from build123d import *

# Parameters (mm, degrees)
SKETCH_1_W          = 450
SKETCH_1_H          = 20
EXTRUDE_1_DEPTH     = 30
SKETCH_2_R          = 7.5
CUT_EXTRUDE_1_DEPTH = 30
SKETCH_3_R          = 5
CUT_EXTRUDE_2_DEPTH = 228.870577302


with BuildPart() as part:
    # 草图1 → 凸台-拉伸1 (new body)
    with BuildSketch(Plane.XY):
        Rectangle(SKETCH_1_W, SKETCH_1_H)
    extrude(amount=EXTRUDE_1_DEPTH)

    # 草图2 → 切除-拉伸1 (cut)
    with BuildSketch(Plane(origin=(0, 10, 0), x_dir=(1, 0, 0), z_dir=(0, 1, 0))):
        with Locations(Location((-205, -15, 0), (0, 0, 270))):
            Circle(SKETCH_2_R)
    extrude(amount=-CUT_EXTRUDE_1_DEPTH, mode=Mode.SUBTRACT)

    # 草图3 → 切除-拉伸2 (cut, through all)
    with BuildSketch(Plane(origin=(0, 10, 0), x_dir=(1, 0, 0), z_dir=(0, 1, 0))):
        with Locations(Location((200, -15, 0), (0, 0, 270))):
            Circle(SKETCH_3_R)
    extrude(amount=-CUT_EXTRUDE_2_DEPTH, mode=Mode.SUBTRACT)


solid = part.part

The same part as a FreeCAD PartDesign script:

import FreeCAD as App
import Part
import Sketcher


def add_polygon(sketch, points):
    """Adds a closed chain of lines whose ends are joined by coincident constraints."""
    first, n = sketch.GeometryCount, len(points)
    for a, b in zip(points, points[1:] + points[:1]):
        sketch.addGeometry(Part.LineSegment(App.Vector(*a, 0), App.Vector(*b, 0)), False)
    for i in range(n):
        sketch.addConstraint(Sketcher.Constraint("Coincident", first + i, 2, first + (i + 1) % n, 1))

doc = App.newDocument("Part")
body = doc.addObject("PartDesign::Body", "Body")

# Sketch on XY plane
sketch1 = doc.addObject("Sketcher::SketchObject", "Sketch")
body.addObject(sketch1)
sketch1.AttachmentSupport = (doc.XY_Plane, [""])
sketch1.MapMode = "FlatFace"
add_polygon(sketch1, [(-225, 10), (-225, -10), (225, -10), (225, 10)])  # lines 0-3
sketch1.addConstraint(Sketcher.Constraint("Vertical", 0))
sketch1.addConstraint(Sketcher.Constraint("Horizontal", 1))
sketch1.addConstraint(Sketcher.Constraint("Vertical", 2))
sketch1.addConstraint(Sketcher.Constraint("Horizontal", 3))
sketch1.addConstraint(Sketcher.Constraint("Symmetric", 0, 2, 2, 2, -1, 1))
sketch1.addConstraint(Sketcher.Constraint("DistanceX", 1, 1, 1, 2, 450.0))
sketch1.addConstraint(Sketcher.Constraint("DistanceY", 0, 2, 0, 1, 20.0))
pad1 = doc.addObject("PartDesign::Pad", "Pad")
body.addObject(pad1)
pad1.Profile = sketch1
pad1.Length = 30

# Sketch on XZ plane
sketch2 = doc.addObject("Sketcher::SketchObject", "Sketch001")
body.addObject(sketch2)
sketch2.AttachmentSupport = (doc.XZ_Plane, [""])
sketch2.MapMode = "FlatFace"
sketch2.AttachmentOffset = App.Placement(App.Vector(0, 0, -10), App.Rotation())
sketch2.addGeometry(Part.Circle(App.Vector(-205, 15, 0), App.Vector(0, 0, 1), 8), False)
sketch2.addConstraint(Sketcher.Constraint("Diameter", 0, 15.0))
sketch2.addConstraint(Sketcher.Constraint("DistanceX", 0, 3, -1, 1, 205.0))
sketch2.addConstraint(Sketcher.Constraint("DistanceY", -1, 1, 0, 3, 15.0))
pocket1 = doc.addObject("PartDesign::Pocket", "Pocket")
body.addObject(pocket1)
pocket1.Profile = sketch2
pocket1.Length = 30
pocket1.Reversed = True

# Sketch on XZ plane
sketch3 = doc.addObject("Sketcher::SketchObject", "Sketch002")
body.addObject(sketch3)
sketch3.AttachmentSupport = (doc.XZ_Plane, [""])
sketch3.MapMode = "FlatFace"
sketch3.AttachmentOffset = App.Placement(App.Vector(0, 0, -10), App.Rotation())
sketch3.addGeometry(Part.Circle(App.Vector(200, 15, 0), App.Vector(0, 0, 1), 5), False)
sketch3.addConstraint(Sketcher.Constraint("Diameter", 0, 10.0))
sketch3.addConstraint(Sketcher.Constraint("DistanceX", -1, 1, 0, 3, 200.0))
sketch3.addConstraint(Sketcher.Constraint("DistanceY", -1, 1, 0, 3, 15.0))
pocket2 = doc.addObject("PartDesign::Pocket", "Pocket001")
body.addObject(pocket2)
pocket2.Profile = sketch3
pocket2.Type = "ThroughAll"
pocket2.Reversed = True

doc.recompute()
